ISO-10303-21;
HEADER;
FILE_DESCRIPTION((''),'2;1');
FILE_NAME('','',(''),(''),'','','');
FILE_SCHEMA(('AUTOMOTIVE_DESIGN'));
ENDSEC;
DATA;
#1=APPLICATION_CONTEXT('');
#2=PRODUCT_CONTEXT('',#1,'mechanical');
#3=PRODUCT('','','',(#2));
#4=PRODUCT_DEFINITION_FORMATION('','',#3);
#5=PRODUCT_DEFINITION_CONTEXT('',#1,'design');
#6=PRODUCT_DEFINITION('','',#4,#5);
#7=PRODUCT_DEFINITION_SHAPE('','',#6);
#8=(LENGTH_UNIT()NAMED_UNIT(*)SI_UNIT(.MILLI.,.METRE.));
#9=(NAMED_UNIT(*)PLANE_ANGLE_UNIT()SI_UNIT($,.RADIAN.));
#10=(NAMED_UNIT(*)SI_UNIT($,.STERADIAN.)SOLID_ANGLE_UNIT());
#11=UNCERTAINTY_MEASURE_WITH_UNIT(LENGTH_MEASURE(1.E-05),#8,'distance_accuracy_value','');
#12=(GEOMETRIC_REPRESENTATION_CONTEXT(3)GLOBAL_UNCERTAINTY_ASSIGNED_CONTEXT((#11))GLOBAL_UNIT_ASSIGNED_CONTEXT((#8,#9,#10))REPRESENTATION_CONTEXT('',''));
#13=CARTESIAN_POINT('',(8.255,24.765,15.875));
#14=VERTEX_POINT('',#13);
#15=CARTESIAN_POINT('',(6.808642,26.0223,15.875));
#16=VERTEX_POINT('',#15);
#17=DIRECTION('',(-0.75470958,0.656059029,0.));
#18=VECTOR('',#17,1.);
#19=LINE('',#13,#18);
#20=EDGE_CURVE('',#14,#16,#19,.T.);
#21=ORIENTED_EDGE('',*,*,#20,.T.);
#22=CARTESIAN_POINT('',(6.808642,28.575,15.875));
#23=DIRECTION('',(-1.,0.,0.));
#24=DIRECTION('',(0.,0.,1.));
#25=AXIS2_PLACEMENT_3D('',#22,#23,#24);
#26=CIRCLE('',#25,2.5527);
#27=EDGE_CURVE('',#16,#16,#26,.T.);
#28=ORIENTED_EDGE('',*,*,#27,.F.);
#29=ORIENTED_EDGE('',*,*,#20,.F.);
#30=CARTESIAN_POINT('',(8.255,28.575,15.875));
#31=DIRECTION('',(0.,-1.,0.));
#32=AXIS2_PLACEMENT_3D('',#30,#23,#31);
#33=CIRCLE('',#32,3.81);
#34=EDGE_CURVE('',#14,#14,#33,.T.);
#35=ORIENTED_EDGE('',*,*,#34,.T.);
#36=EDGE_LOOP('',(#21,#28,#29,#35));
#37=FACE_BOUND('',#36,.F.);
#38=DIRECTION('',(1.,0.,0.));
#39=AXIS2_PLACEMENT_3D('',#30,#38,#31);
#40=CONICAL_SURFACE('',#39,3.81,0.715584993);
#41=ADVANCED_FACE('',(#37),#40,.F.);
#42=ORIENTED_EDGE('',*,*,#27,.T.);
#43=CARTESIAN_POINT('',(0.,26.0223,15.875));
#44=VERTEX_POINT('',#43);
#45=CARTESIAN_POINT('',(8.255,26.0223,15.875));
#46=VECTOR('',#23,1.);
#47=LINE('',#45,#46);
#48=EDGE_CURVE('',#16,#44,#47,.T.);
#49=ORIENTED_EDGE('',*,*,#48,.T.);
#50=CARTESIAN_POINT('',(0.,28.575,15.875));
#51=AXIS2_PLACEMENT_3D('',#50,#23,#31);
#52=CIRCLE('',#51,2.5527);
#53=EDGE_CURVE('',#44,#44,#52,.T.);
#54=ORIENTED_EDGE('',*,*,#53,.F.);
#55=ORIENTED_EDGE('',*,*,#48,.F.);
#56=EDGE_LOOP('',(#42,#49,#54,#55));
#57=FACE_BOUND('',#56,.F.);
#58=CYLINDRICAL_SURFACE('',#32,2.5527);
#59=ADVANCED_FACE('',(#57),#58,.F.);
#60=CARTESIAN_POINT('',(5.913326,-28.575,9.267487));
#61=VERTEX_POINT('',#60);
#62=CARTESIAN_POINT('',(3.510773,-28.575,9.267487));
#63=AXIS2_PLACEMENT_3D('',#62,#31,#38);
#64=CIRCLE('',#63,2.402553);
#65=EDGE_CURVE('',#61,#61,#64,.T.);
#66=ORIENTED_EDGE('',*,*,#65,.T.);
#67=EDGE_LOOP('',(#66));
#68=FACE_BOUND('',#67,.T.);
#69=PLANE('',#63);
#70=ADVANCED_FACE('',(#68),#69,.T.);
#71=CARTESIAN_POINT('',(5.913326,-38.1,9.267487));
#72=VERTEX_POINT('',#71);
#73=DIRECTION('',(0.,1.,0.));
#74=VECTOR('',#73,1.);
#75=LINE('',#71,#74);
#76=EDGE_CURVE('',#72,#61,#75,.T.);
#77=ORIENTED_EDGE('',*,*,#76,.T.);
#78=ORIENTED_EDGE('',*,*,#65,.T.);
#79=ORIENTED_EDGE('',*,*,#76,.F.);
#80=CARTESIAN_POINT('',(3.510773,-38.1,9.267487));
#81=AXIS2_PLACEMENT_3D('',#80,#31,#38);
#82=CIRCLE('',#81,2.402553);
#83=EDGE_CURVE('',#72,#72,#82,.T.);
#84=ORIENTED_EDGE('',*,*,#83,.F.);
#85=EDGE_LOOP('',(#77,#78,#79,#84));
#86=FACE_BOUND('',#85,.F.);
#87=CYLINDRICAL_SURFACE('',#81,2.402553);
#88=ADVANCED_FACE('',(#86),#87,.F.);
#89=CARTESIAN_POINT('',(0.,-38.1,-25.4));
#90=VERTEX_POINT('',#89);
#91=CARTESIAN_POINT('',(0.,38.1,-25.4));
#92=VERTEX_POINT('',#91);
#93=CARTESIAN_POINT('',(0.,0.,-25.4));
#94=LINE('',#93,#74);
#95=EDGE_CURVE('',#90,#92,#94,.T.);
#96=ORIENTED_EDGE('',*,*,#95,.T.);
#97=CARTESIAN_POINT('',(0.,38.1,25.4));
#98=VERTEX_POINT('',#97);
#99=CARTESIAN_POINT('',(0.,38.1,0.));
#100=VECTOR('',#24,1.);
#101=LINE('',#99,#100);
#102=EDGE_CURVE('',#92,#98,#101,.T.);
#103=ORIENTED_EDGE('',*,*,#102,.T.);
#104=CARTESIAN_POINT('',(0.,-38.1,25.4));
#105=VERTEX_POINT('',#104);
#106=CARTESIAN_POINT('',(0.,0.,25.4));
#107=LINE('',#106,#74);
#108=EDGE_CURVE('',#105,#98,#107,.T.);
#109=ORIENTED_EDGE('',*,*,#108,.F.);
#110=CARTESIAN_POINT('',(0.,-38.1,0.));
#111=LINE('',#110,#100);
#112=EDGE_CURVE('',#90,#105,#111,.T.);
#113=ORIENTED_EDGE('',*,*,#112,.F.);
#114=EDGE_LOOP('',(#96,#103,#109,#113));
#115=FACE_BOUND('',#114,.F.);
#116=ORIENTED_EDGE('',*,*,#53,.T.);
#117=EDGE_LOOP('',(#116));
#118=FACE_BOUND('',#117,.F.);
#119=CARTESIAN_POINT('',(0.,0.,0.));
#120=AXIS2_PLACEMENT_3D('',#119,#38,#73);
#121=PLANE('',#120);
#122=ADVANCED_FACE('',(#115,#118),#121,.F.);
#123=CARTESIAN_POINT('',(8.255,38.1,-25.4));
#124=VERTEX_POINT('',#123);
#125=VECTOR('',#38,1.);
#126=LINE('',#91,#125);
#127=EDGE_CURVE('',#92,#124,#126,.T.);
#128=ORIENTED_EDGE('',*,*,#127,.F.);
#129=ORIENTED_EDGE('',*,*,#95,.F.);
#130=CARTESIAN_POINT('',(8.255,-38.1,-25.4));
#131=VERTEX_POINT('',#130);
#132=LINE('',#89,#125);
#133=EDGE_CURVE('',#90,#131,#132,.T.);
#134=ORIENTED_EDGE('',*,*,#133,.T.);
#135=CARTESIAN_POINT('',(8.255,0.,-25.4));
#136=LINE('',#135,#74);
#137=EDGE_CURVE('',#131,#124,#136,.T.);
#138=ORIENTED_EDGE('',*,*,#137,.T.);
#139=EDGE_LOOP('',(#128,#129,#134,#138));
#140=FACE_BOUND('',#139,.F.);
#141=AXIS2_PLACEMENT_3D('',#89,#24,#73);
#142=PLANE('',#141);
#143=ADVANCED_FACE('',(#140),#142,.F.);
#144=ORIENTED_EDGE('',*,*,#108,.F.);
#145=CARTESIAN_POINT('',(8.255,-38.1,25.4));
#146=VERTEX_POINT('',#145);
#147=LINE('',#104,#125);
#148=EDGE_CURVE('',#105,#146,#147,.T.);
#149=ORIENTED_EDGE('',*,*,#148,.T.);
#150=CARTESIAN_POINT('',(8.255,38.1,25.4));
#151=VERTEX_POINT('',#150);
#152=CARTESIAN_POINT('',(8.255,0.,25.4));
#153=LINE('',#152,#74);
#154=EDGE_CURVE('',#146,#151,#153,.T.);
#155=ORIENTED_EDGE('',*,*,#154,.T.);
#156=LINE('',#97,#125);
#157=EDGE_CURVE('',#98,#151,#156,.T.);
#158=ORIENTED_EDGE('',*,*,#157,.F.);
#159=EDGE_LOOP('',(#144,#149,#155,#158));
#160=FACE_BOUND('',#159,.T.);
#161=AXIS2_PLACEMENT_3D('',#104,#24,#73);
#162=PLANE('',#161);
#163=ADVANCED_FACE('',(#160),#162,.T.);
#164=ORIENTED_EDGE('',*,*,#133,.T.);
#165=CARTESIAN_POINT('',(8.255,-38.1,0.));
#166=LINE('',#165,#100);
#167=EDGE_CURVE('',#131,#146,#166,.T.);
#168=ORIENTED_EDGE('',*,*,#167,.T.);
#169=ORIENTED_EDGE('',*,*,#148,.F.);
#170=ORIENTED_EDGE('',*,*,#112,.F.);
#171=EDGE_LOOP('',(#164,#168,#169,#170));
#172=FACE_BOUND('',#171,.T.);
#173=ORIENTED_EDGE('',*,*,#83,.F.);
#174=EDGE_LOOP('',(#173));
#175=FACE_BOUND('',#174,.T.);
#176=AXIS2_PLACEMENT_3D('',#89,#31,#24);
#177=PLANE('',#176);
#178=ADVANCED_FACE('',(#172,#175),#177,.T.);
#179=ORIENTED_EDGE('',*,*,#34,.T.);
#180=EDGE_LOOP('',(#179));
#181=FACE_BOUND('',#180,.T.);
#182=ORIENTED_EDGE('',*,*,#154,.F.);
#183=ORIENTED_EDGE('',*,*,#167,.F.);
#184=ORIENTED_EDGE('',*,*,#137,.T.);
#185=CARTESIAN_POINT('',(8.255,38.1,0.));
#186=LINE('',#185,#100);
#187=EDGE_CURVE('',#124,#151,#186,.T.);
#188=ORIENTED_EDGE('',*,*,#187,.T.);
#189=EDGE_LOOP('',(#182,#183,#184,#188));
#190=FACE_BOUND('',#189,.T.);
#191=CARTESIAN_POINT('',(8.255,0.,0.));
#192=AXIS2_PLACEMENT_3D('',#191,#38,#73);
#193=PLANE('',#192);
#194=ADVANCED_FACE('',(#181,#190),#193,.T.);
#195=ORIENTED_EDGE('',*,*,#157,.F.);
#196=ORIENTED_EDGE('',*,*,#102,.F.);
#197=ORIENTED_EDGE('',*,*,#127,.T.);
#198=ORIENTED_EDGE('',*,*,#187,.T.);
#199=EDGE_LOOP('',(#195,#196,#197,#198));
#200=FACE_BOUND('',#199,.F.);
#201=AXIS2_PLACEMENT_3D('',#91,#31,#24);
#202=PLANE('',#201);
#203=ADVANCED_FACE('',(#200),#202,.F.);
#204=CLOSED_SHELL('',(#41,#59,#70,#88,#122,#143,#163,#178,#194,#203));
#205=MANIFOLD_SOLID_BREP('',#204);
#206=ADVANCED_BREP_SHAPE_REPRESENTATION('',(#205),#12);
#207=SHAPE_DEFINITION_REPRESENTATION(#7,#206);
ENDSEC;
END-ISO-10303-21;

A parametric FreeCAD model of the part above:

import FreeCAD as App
import Part
import Sketcher
from FreeCAD import Vector
Q = App.Units.Quantity

doc = App.newDocument("Part")
body = doc.addObject("PartDesign::Body", "Body")

# Sketch on YZ plane
sketch1 = body.newObject("Sketcher::SketchObject", "Sketch")
sketch1.AttachmentSupport = (doc.getObject("YZ_Plane"), [""])
sketch1.MapMode = "FlatFace"
sketch1.addGeometry([
    Part.LineSegment(Vector(-38, 25, 0), Vector(-38, -25, 0)),
    Part.LineSegment(Vector(-38, -25, 0), Vector(38, -25, 0)),
    Part.LineSegment(Vector(38, -25, 0), Vector(38, 25, 0)),
    Part.LineSegment(Vector(38, 25, 0), Vector(-38, 25, 0)),
], False)
sketch1.addConstraint([
    Sketcher.Constraint("Coincident", 0, 2, 1, 1),
    Sketcher.Constraint("Coincident", 1, 2, 2, 1),
    Sketcher.Constraint("Coincident", 2, 2, 3, 1),
    Sketcher.Constraint("Coincident", 3, 2, 0, 1),
    Sketcher.Constraint("Vertical", 0),
    Sketcher.Constraint("Horizontal", 1),
    Sketcher.Constraint("Vertical", 2),
    Sketcher.Constraint("Horizontal", 3),
    Sketcher.Constraint("Symmetric", 0, 2, 2, 2, -1, 1),
    Sketcher.Constraint("DistanceX", 1, 1, 1, 2, Q("3 in")),
    Sketcher.Constraint("DistanceY", 0, 2, 0, 1, Q("2 in")),
])
pad1 = body.newObject("PartDesign::Pad", "Pad")
pad1.Profile = sketch1
pad1.Length = Q("0.325 in")

# Sketch on XZ plane
sketch2 = body.newObject("Sketcher::SketchObject", "Sketch001")
sketch2.AttachmentSupport = (doc.getObject("XZ_Plane"), [""])
sketch2.MapMode = "FlatFace"
sketch2.AttachmentOffset = App.Placement(Vector(0, 0, 1.5 * 25.4), App.Rotation())
sketch2.addGeometry(Part.Circle(Vector(3.5, 9.3, 0), Vector(0, 0, 1), 2.4), False)
sketch2.addConstraint([
    Sketcher.Constraint("Diameter", 0, Q("4.805106 mm")),
    Sketcher.Constraint("DistanceX", -1, 1, 0, 3, Q("3.510773 mm")),
    Sketcher.Constraint("DistanceY", -1, 1, 0, 3, Q("9.267487 mm")),
])
pocket1 = body.newObject("PartDesign::Pocket", "Pocket")
pocket1.Profile = sketch2
pocket1.Length = Q("0.375 in")

# Sketch on YZ plane
sketch3 = body.newObject("Sketcher::SketchObject", "Sketch002")
sketch3.AttachmentSupport = (doc.getObject("YZ_Plane"), [""])
sketch3.MapMode = "FlatFace"
sketch3.AttachmentOffset = App.Placement(Vector(0, 0, 0.325 * 25.4), App.Rotation())
sketch3.addGeometry(Part.Circle(Vector(28.6, 15.9, 0), Vector(0, 0, 1), 2.6), False)
sketch3.addConstraint([
    Sketcher.Constraint("Diameter", 0, Q("0.201 in")),
    Sketcher.Constraint("DistanceX", -1, 1, 0, 3, Q("1.125 in")),
    Sketcher.Constraint("DistanceY", -1, 1, 0, 3, Q("0.625 in")),
])
doc.recompute()
hole = body.newObject("PartDesign::Hole", "Hole")
hole.Profile = sketch3
hole.ThreadType = "None"
hole.Diameter = Q("0.201 in")
hole.DepthType = "ThroughAll"
hole.HoleCutType = "Countersink"
hole.HoleCutDiameter = Q("0.3 in")
hole.HoleCutCountersinkAngle = 82

doc.recompute()
